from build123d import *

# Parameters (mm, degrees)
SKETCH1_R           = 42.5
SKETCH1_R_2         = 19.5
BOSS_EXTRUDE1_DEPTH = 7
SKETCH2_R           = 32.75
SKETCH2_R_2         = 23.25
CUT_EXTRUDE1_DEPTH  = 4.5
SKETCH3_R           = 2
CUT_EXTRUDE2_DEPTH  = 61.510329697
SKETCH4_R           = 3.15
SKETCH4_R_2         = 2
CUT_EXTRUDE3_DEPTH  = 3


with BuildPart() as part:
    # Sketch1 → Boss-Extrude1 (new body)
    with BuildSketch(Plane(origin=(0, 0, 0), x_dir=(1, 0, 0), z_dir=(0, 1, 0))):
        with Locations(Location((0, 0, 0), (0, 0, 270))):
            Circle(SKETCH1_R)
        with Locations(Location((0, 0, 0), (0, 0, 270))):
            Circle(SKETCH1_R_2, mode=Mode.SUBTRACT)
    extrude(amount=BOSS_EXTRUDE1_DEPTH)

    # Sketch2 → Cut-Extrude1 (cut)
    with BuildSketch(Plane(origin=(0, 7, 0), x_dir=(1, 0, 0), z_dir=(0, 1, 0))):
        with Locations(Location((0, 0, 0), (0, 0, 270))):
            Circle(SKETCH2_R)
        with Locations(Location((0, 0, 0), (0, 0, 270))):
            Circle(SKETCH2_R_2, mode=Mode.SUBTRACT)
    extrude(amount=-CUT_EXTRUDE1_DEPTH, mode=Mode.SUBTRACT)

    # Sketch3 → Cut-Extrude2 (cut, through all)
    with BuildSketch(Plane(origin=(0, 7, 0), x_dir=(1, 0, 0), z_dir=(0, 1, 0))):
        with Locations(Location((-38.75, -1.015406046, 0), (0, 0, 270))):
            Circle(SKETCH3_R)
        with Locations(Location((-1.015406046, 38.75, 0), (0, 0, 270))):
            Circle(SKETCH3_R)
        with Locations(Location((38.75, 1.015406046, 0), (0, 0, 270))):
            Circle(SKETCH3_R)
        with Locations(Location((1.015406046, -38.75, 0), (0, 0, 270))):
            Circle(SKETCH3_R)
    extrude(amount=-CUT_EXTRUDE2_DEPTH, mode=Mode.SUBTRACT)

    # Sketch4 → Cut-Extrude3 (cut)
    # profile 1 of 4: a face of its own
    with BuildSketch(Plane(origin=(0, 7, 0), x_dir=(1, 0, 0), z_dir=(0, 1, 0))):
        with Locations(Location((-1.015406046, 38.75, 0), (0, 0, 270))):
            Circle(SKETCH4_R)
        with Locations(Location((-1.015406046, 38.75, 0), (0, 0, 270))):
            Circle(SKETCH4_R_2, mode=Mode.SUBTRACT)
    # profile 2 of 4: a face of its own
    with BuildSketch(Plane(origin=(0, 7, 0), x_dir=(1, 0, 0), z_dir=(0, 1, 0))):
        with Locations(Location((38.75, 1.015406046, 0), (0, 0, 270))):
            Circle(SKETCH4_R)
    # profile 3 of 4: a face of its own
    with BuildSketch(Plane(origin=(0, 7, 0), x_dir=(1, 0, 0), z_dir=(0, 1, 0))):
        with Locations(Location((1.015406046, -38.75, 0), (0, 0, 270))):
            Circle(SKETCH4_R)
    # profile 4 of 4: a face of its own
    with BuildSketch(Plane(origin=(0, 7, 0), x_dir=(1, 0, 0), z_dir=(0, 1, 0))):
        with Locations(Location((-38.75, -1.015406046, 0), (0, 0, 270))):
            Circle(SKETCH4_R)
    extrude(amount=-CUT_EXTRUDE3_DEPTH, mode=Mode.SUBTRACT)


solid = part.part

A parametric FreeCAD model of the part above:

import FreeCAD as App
import Part
import Sketcher

V = App.Vector
Q = App.Units.Quantity

doc = App.newDocument("Part")
body = doc.addObject("PartDesign::Body", "Body")

sketch1 = body.newObject("Sketcher::SketchObject", "Sketch")
sketch1.AttachmentSupport = (doc.getObject("XZ_Plane"), [""])
sketch1.MapMode = "FlatFace"
sketch1.addGeometry(Part.Circle(V(0, 0, 0), V(0, 0, 1), 42), False)
sketch1.addGeometry(Part.Circle(V(0, 0, 0), V(0, 0, 1), 20), False)
sketch1.addConstraint(Sketcher.Constraint("Coincident", 0, 3, -1, 1))
sketch1.addConstraint(Sketcher.Constraint("Coincident", 1, 3, -1, 1))
sketch1.addConstraint(Sketcher.Constraint("Diameter", 0, Q("85 mm")))
sketch1.addConstraint(Sketcher.Constraint("Diameter", 1, Q("39 mm")))
pad1 = body.newObject("PartDesign::Pad", "Pad")
pad1.Profile = sketch1
pad1.Length = 7
pad1.Reversed = True

sketch2 = body.newObject("Sketcher::SketchObject", "Sketch001")
sketch2.AttachmentSupport = (doc.getObject("XZ_Plane"), [""])
sketch2.MapMode = "FlatFace"
sketch2.AttachmentOffset = App.Placement(V(0, 0, -7), App.Rotation())
sketch2.addGeometry(Part.Circle(V(0, 0, 0), V(0, 0, 1), 33), False)
sketch2.addGeometry(Part.Circle(V(0, 0, 0), V(0, 0, 1), 23), False)
sketch2.addConstraint(Sketcher.Constraint("Coincident", 0, 3, -1, 1))
sketch2.addConstraint(Sketcher.Constraint("Coincident", 1, 3, -1, 1))
sketch2.addConstraint(Sketcher.Constraint("Diameter", 0, Q("65.5 mm")))
sketch2.addConstraint(Sketcher.Constraint("Diameter", 1, Q("46.5 mm")))
pocket1 = body.newObject("PartDesign::Pocket", "Pocket")
pocket1.Profile = sketch2
pocket1.Length = 4.5
pocket1.Reversed = True

sketch3 = body.newObject("Sketcher::SketchObject", "Sketch002")
sketch3.AttachmentSupport = (doc.getObject("XZ_Plane"), [""])
sketch3.MapMode = "FlatFace"
sketch3.AttachmentOffset = App.Placement(V(0, 0, -7), App.Rotation())
sketch3.addGeometry(Part.Circle(V(-38.8, 1, 0), V(0, 0, 1), 2), False)
sketch3.addGeometry(Part.Circle(V(-1, -38.8, 0), V(0, 0, 1), 2), False)
sketch3.addGeometry(Part.Circle(V(38.8, -1, 0), V(0, 0, 1), 2), False)
sketch3.addGeometry(Part.Circle(V(1, 38.8, 0), V(0, 0, 1), 2), False)
sketch3.addConstraint(Sketcher.Constraint("Equal", 0, 1))
sketch3.addConstraint(Sketcher.Constraint("Equal", 1, 2))
sketch3.addConstraint(Sketcher.Constraint("Equal", 2, 3))
sketch3.addConstraint(Sketcher.Constraint("Symmetric", 0, 3, 2, 3, -1, 1))
sketch3.addConstraint(Sketcher.Constraint("Symmetric", 1, 3, 3, 3, -1, 1))
sketch3.addConstraint(Sketcher.Constraint("Diameter", 0, Q("4 mm")))
sketch3.addConstraint(Sketcher.Constraint("DistanceX", 0, 3, 2, 3, Q("77.5 mm")))
sketch3.addConstraint(Sketcher.Constraint("DistanceY", 1, 3, 3, 3, Q("77.5 mm")))
sketch3.addConstraint(Sketcher.Constraint("DistanceY", -1, 1, 0, 3, Q("1.015406 mm")))
sketch3.addConstraint(Sketcher.Constraint("DistanceX", 1, 3, -1, 1, Q("1.015406 mm")))
pocket2 = body.newObject("PartDesign::Pocket", "Pocket001")
pocket2.Profile = sketch3
pocket2.Type = "ThroughAll"
pocket2.Reversed = True

sketch4 = body.newObject("Sketcher::SketchObject", "Sketch003")
sketch4.AttachmentSupport = (doc.getObject("XZ_Plane"), [""])
sketch4.MapMode = "FlatFace"
sketch4.AttachmentOffset = App.Placement(V(0, 0, -7), App.Rotation())
sketch4.addGeometry(Part.Circle(V(-1, -38.8, 0), V(0, 0, 1), 3.1), False)
sketch4.addGeometry(Part.Circle(V(-1, -38.8, 0), V(0, 0, 1), 2), False)
sketch4.addGeometry(Part.Circle(V(38.8, -1, 0), V(0, 0, 1), 3.1), False)
sketch4.addGeometry(Part.Circle(V(1, 38.8, 0), V(0, 0, 1), 3.1), False)
sketch4.addGeometry(Part.Circle(V(-38.8, 1, 0), V(0, 0, 1), 3.1), False)
sketch4.addConstraint(Sketcher.Constraint("Coincident", 1, 3, 0, 3))
sketch4.addConstraint(Sketcher.Constraint("Equal", 0, 2))
sketch4.addConstraint(Sketcher.Constraint("Equal", 2, 3))
sketch4.addConstraint(Sketcher.Constraint("Equal", 3, 4))
sketch4.addConstraint(Sketcher.Constraint("Symmetric", 0, 3, 3, 3, -1, 1))
sketch4.addConstraint(Sketcher.Constraint("Symmetric", 2, 3, 4, 3, -1, 1))
sketch4.addConstraint(Sketcher.Constraint("Diameter", 1, Q("4 mm")))
sketch4.addConstraint(Sketcher.Constraint("Diameter", 0, Q("6.3 mm")))
sketch4.addConstraint(Sketcher.Constraint("DistanceY", 0, 3, 3, 3, Q("77.5 mm")))
sketch4.addConstraint(Sketcher.Constraint("DistanceX", 4, 3, 2, 3, Q("77.5 mm")))
sketch4.addConstraint(Sketcher.Constraint("DistanceX", 0, 3, -1, 1, Q("1.015406 mm")))
sketch4.addConstraint(Sketcher.Constraint("DistanceY", 2, 3, -1, 1, Q("1.015406 mm")))
pocket3 = body.newObject("PartDesign::Pocket", "Pocket002")
pocket3.Profile = sketch4
pocket3.Length = 3
pocket3.Reversed = True

doc.recompute()
